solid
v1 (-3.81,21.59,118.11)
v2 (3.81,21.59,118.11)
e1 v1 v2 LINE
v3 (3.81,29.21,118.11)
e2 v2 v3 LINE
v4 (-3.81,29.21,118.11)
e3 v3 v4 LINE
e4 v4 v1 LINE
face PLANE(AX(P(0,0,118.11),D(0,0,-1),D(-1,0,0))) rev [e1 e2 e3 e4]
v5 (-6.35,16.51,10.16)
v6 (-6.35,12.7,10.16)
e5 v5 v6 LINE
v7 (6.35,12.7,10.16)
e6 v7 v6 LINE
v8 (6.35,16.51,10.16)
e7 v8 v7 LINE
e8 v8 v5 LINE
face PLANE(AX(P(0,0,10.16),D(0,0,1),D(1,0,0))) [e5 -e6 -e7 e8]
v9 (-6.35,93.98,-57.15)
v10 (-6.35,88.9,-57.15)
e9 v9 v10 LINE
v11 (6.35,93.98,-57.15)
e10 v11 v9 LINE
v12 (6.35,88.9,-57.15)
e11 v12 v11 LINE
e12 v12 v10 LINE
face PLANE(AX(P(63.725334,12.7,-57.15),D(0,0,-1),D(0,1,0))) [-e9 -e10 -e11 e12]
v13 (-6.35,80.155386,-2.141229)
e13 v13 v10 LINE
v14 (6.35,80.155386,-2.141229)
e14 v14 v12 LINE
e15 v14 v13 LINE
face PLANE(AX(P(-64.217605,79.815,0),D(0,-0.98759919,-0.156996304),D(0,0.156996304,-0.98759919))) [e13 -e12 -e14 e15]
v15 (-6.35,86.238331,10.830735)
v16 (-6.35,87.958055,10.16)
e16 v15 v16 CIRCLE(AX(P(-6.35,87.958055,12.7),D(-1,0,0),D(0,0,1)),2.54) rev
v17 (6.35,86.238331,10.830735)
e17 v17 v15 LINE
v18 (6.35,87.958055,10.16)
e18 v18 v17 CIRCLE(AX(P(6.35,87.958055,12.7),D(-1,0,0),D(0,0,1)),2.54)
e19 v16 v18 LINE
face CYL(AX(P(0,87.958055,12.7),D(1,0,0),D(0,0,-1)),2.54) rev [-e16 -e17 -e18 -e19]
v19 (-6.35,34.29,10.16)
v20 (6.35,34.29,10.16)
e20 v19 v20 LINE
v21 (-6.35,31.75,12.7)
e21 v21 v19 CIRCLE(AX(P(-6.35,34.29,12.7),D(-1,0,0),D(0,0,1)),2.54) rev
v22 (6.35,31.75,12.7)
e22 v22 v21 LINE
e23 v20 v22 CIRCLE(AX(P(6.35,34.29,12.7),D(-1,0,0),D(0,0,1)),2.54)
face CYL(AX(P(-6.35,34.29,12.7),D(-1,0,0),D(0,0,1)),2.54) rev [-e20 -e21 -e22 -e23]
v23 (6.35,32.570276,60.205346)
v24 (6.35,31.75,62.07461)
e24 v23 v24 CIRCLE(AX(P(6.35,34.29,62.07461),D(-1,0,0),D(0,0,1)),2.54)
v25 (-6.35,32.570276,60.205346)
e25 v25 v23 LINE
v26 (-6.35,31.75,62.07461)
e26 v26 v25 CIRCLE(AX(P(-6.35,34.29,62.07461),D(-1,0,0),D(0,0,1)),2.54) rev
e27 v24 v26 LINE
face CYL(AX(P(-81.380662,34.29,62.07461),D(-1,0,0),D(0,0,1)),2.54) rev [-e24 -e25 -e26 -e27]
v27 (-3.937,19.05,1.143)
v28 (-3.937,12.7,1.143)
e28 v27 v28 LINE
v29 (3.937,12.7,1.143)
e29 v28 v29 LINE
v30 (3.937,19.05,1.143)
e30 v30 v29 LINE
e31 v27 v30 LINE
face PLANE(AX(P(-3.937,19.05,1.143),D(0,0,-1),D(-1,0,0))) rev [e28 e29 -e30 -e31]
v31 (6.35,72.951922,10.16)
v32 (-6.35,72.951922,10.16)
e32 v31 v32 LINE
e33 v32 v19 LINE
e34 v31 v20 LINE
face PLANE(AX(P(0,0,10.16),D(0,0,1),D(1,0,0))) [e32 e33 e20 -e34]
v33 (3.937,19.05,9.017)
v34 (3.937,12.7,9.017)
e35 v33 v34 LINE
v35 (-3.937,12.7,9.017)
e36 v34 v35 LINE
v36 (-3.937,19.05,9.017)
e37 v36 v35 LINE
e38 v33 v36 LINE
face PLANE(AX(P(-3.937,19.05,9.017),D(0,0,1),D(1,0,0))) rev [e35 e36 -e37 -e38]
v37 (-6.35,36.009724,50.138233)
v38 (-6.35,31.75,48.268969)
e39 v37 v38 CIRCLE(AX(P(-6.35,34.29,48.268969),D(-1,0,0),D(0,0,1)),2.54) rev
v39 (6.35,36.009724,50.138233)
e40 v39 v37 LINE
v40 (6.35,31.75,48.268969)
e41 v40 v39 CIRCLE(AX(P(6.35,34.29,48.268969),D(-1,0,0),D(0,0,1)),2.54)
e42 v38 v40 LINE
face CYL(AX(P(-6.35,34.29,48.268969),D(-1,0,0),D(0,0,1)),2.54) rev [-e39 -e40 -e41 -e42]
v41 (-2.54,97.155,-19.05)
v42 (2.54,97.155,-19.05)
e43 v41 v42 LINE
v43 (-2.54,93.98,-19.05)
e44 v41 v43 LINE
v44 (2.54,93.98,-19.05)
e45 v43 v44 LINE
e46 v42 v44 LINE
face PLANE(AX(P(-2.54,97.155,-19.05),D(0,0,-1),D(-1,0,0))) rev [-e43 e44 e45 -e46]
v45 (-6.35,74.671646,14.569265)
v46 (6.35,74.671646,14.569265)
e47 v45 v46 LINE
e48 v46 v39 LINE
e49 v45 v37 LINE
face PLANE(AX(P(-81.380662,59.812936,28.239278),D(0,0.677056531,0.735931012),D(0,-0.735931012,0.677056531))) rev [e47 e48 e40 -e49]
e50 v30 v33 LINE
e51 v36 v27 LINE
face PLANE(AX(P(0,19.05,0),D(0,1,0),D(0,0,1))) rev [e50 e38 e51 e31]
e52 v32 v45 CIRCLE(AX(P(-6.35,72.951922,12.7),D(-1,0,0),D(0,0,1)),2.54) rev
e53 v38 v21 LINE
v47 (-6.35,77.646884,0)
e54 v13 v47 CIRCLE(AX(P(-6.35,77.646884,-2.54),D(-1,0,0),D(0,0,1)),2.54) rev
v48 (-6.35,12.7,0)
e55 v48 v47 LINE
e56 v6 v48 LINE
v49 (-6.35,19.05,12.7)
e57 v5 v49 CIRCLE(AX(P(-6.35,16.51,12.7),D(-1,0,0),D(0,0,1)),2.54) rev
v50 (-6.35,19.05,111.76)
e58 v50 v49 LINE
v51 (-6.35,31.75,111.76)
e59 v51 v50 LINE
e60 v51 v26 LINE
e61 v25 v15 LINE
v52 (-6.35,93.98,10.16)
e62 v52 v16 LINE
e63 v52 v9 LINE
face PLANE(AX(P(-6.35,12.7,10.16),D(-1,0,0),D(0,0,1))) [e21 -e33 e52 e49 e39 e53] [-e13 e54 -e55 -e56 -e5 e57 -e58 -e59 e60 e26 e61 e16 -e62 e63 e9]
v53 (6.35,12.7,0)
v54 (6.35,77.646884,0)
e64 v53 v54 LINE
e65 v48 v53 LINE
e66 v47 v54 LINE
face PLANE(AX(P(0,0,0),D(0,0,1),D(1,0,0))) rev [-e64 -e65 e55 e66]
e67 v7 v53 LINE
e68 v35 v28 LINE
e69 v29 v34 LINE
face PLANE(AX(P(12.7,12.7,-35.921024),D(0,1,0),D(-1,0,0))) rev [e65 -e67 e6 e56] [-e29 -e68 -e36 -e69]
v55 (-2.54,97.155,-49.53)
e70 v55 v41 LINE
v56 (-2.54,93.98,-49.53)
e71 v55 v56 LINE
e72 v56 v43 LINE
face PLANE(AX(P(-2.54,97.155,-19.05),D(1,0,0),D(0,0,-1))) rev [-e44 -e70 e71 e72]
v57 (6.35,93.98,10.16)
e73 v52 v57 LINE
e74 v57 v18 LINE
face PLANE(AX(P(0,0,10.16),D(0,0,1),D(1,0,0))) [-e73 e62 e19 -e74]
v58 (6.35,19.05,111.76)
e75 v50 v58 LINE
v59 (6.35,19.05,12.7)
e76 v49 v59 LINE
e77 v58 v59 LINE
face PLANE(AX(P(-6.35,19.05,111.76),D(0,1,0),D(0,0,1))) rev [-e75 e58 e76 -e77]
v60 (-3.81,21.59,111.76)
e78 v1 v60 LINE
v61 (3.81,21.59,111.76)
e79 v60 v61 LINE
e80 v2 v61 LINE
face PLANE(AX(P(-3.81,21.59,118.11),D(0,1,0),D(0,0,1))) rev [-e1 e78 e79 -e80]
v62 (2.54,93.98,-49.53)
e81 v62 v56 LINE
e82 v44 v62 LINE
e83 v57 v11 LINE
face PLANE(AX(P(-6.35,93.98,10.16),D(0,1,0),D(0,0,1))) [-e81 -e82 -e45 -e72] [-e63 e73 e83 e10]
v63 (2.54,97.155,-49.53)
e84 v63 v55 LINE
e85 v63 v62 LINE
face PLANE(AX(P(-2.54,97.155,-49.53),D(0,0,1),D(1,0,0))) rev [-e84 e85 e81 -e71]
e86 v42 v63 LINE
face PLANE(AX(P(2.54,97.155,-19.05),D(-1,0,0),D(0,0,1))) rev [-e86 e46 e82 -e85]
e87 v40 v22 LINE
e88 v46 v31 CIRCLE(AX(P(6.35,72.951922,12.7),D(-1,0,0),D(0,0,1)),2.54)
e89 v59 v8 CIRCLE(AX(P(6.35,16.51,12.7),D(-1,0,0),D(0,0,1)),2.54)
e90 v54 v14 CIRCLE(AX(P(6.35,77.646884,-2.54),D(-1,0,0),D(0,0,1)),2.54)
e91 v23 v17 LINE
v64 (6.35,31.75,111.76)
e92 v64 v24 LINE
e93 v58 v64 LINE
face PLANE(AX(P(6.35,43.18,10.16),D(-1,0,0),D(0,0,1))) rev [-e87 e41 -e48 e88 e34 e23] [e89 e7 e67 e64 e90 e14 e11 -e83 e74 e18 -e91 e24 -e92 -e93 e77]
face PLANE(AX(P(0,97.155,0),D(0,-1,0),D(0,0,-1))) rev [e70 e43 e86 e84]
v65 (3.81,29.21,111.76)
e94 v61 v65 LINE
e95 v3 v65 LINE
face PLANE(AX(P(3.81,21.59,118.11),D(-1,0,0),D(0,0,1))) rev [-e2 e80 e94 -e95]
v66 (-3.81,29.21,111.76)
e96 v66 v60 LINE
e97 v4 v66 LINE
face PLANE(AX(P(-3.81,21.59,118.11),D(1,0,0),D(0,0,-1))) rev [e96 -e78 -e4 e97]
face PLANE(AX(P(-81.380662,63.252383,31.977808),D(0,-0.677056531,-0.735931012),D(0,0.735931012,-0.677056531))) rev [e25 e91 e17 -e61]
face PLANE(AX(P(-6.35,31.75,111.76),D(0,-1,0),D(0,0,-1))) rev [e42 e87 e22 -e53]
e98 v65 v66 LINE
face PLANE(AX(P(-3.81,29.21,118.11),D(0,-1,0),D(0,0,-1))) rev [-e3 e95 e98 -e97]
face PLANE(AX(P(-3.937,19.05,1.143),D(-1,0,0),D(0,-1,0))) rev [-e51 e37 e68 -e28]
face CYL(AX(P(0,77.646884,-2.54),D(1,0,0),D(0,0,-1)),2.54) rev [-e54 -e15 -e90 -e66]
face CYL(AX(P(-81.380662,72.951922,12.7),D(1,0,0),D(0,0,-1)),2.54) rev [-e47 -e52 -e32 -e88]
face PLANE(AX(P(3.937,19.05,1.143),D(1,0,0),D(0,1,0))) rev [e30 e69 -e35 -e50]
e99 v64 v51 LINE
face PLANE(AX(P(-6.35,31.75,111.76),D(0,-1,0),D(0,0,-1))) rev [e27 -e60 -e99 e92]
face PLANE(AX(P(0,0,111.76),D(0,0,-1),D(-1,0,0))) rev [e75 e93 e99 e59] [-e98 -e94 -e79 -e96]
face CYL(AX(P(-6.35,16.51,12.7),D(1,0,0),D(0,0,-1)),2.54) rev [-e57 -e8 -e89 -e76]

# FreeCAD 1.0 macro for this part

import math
import FreeCAD as App
import Part
import Sketcher
from FreeCAD import Vector
Q = App.Units.Quantity


def edges_at(feature, points):
    """Names of the edges that pass closest to the given points."""
    edges = feature.Shape.Edges
    near = lambda p: min(range(len(edges)), key=lambda i: edges[i].distToShape(Part.Vertex(*p))[0])
    return sorted({f"Edge{near(p) + 1}" for p in points})


def add_polygon(sketch, points):
    """Adds a closed chain of lines whose ends are joined by coincident constraints."""
    first, n = sketch.GeometryCount, len(points)
    for a, b in zip(points, points[1:] + points[:1]):
        sketch.addGeometry(Part.LineSegment(App.Vector(*a, 0), App.Vector(*b, 0)), False)
    for i in range(n):
        sketch.addConstraint(Sketcher.Constraint("Coincident", first + i, 2, first + (i + 1) % n, 1))

doc = App.newDocument("Part")
params = doc.addObject("Spreadsheet::Sheet", "Params")
for row, (alias, value) in enumerate([
    ("sketch1_diameter", "0.4 in"),
    ("sketch1_radius", "0.5 in"),
    ("sketch1_diameter2", "0.14 in"),
    ("sketch1_width", "0.5 in"),
    ("pad1_length", "0.4 in"),
    ("sketch2_width", "0.5 in"),
    ("pad2_length", "4 in"),
    ("sketch3_width", "0.3 in"),
    ("pad3_length", "0.25 in"),
    ("pad4_length", "0.5 in"),
    ("fillet_radius", "0.1 in"),
    ("sketch5_width", "0.2 in"),
    ("sketch5_height", "2.25 in"),
    ("pad5_length", "0.5 in"),
    ("sketch6_width", "1 in"),
    ("pocket1_length", "4.4 in"),
    ("sketch7_height", "2.25 in"),
    ("pad6_length", "0.5 in"),
    ("fillet2_radius", "0.1 in"),
    ("sketch8_width", "0.2 in"),
    ("sketch8_height", "1.2 in"),
    ("pad7_length", "0.125 in"),
    ("sketch9_width", "0.31 in"),
    ("pocket2_length", "0.25 in"),
], start=1):
    params.set(f"A{row}", alias)
    params.set(f"B{row}", "=" + value)
    params.setAlias(f"B{row}", alias)

body = doc.addObject("PartDesign::Body", "Body")

# Sketch on XY plane
sketch1 = doc.addObject("Sketcher::SketchObject", "Sketch")
body.addObject(sketch1)
sketch1.AttachmentSupport = (doc.XY_Plane, [""])
sketch1.MapMode = "FlatFace"
sketch1.addGeometry([
    Part.ArcOfCircle(Part.Circle(Vector(0, 0, 0), Vector(0, 0, 1), 12.7), math.radians(120), math.radians(420)),  # 0
    Part.LineSegment(Vector(6.3, 11, 0), Vector(6.3, 94, 0)),  # 1
    Part.LineSegment(Vector(6.3, 94, 0), Vector(-6.3, 94, 0)),  # 2
    Part.LineSegment(Vector(-6.3, 94, 0), Vector(-6.3, 11, 0)),  # 3
    Part.Circle(Vector(0, -8.1, 0), Vector(0, 0, 1), 1.8),  # 4
    Part.Circle(Vector(-8.1, 0, 0), Vector(0, 0, 1), 1.8),  # 5
    Part.Circle(Vector(0, 0, 0), Vector(0, 0, 1), 5.1),  # 6
    Part.Circle(Vector(8.1, 0, 0), Vector(0, 0, 1), 1.8),  # 7
    Part.Circle(Vector(0, 8.1, 0), Vector(0, 0, 1), 1.8),  # 8
], False)
sketch1.addConstraint([
    Sketcher.Constraint("Coincident", 0, 2, 1, 1),
    Sketcher.Constraint("Coincident", 1, 2, 2, 1),
    Sketcher.Constraint("Coincident", 2, 2, 3, 1),
    Sketcher.Constraint("Coincident", 3, 2, 0, 1),
    Sketcher.Constraint("Vertical", 1),
    Sketcher.Constraint("Horizontal", 2),
    Sketcher.Constraint("Vertical", 3),
    Sketcher.Constraint("Coincident", 0, 3, -1, 1),
    Sketcher.Constraint("Coincident", 6, 3, -1, 1),
    Sketcher.Constraint("Equal", 4, 5),
    Sketcher.Constraint("Equal", 5, 7),
    Sketcher.Constraint("Equal", 7, 8),
    Sketcher.Constraint("Symmetric", 5, 3, 7, 3, -1, 1),
    Sketcher.Constraint("Symmetric", 4, 3, 8, 3, -1, 1),
    Sketcher.Constraint("PointOnObject", 4, 3, -2),
    Sketcher.Constraint("PointOnObject", 5, 3, -1),
    Sketcher.Constraint("Horizontal", 0, 2, 3, 2),
    Sketcher.Constraint("Diameter", 6, Q("0.4 in")),
    Sketcher.Constraint("Radius", 0, Q("0.5 in")),
    Sketcher.Constraint("Diameter", 4, Q("0.14 in")),
    Sketcher.Constraint("DistanceX", 2, 2, 2, 1, Q("0.5 in")),
    Sketcher.Constraint("DistanceY", -1, 1, 1, 2, Q("3.7 in")),
    Sketcher.Constraint("DistanceY", 4, 3, -1, 1, Q("0.32 in")),
    Sketcher.Constraint("DistanceX", 5, 3, -1, 1, Q("0.32 in")),
])
sketch1.setExpression("Constraints[17]", "Params.sketch1_diameter")
sketch1.setExpression("Constraints[18]", "Params.sketch1_radius")
sketch1.setExpression("Constraints[19]", "Params.sketch1_diameter2")
sketch1.setExpression("Constraints[20]", "Params.sketch1_width")
pad1 = doc.addObject("PartDesign::Pad", "Pad")
body.addObject(pad1)
pad1.Profile = sketch1
pad1.setExpression("Length", "Params.pad1_length")

# Sketch on XY plane
sketch2 = doc.addObject("Sketcher::SketchObject", "Sketch001")
body.addObject(sketch2)
sketch2.AttachmentSupport = (doc.XY_Plane, [""])
sketch2.MapMode = "FlatFace"
sketch2.AttachmentOffset = App.Placement(Vector(0, 0, 0.4 * 25.4), App.Rotation())
add_polygon(sketch2, [(-6, 32), (-6, 19), (6, 19), (6, 32)])  # lines 0-3
sketch2.addConstraint([
    Sketcher.Constraint("Vertical", 0),
    Sketcher.Constraint("Horizontal", 1),
    Sketcher.Constraint("Vertical", 2),
    Sketcher.Constraint("Horizontal", 3),
    Sketcher.Constraint("Equal", 3, 0),
    Sketcher.Constraint("DistanceX", 1, 1, 1, 2, Q("0.5 in")),
    Sketcher.Constraint("DistanceX", 0, 2, -1, 1, Q("0.25 in")),
    Sketcher.Constraint("DistanceY", -1, 1, 0, 2, Q("0.75 in")),
])
sketch2.setExpression("Constraints[9]", "Params.sketch2_width")
pad2 = doc.addObject("PartDesign::Pad", "Pad001")
body.addObject(pad2)
pad2.Profile = sketch2
pad2.setExpression("Length", "Params.pad2_length")

# Sketch on XY plane
sketch3 = doc.addObject("Sketcher::SketchObject", "Sketch002")
body.addObject(sketch3)
sketch3.AttachmentSupport = (doc.XY_Plane, [""])
sketch3.MapMode = "FlatFace"
sketch3.AttachmentOffset = App.Placement(Vector(0, 0, 4.4 * 25.4), App.Rotation())
add_polygon(sketch3, [(-4, 29), (-4, 22), (4, 22), (4, 29)])  # lines 0-3
sketch3.addConstraint([
    Sketcher.Constraint("Vertical", 0),
    Sketcher.Constraint("Horizontal", 1),
    Sketcher.Constraint("Vertical", 2),
    Sketcher.Constraint("Horizontal", 3),
    Sketcher.Constraint("Equal", 3, 0),
    Sketcher.Constraint("DistanceX", 1, 1, 1, 2, Q("0.3 in")),
    Sketcher.Constraint("DistanceX", 0, 2, -1, 1, Q("0.15 in")),
    Sketcher.Constraint("DistanceY", -1, 1, 0, 2, Q("0.85 in")),
])
sketch3.setExpression("Constraints[9]", "Params.sketch3_width")
pad3 = doc.addObject("PartDesign::Pad", "Pad002")
body.addObject(pad3)
pad3.Profile = sketch3
pad3.setExpression("Length", "Params.pad3_length")

# Sketch on YZ plane
sketch4 = doc.addObject("Sketcher::SketchObject", "Sketch003")
body.addObject(sketch4)
sketch4.AttachmentSupport = (doc.YZ_Plane, [""])
sketch4.MapMode = "FlatFace"
sketch4.AttachmentOffset = App.Placement(Vector(0, 0, 0.25 * 25.4), App.Rotation())
add_polygon(sketch4, [(32, 61), (64, 32), (87, 10), (79, 10), (58, 30), (32, 54)])  # lines 0-5
sketch4.addConstraint([
    Sketcher.Constraint("Horizontal", 2),
    Sketcher.Constraint("Vertical", 5),
    Sketcher.Constraint("Parallel", 0, 1),
    Sketcher.Constraint("Parallel", 1, 3),
    Sketcher.Constraint("Parallel", 3, 4),
    Sketcher.Constraint("DistanceY", 2, 2, 5, 2, Q("2 in")),
    Sketcher.Constraint("DistanceX", -1, 1, 0, 2, Q("2.5 in")),
    Sketcher.Constraint("DistanceY", -1, 1, 1, 2, Q("0.4 in")),
    Sketcher.Constraint("DistanceX", -1, 1, 3, 2, Q("2.3 in")),
    Sketcher.Constraint("DistanceY", -1, 1, 0, 2, Q("1.25 in")),
    Sketcher.Constraint("DistanceX", -1, 1, 4, 2, Q("1.25 in")),
    Sketcher.Constraint("DistanceY", 5, 1, 5, 2, Q("6.902821 mm")),
])
pad4 = doc.addObject("PartDesign::Pad", "Pad003")
body.addObject(pad4)
pad4.Profile = sketch4
pad4.setExpression("Length", "Params.pad4_length")
pad4.Reversed = True
doc.recompute()

fillet = doc.addObject("PartDesign::Fillet", "Fillet")
body.addObject(fillet)
fillet.Base = (pad4, edges_at(pad4, [(0, 31.75, 60.96)]))
fillet.setExpression("Radius", "Params.fillet_radius")

# Sketch on YZ plane
sketch5 = doc.addObject("Sketcher::SketchObject", "Sketch004")
body.addObject(sketch5)
sketch5.AttachmentSupport = (doc.YZ_Plane, [""])
sketch5.MapMode = "FlatFace"
sketch5.AttachmentOffset = App.Placement(Vector(0, 0, -0.25 * 25.4), App.Rotation())
add_polygon(sketch5, [(94, 0), (89, 0), (89, -57), (94, -57)])  # lines 0-3
sketch5.addConstraint([
    Sketcher.Constraint("Horizontal", 0),
    Sketcher.Constraint("Vertical", 1),
    Sketcher.Constraint("Horizontal", 2),
    Sketcher.Constraint("Vertical", 3),
    Sketcher.Constraint("PointOnObject", 0, 2, -1),
    Sketcher.Constraint("DistanceX", 0, 2, 0, 1, Q("0.2 in")),
    Sketcher.Constraint("DistanceY", 1, 2, 1, 1, Q("2.25 in")),
    Sketcher.Constraint("DistanceX", -1, 1, 0, 2, Q("3.5 in")),
])
sketch5.setExpression("Constraints[9]", "Params.sketch5_width")
sketch5.setExpression("Constraints[10]", "Params.sketch5_height")
pad5 = doc.addObject("PartDesign::Pad", "Pad004")
body.addObject(pad5)
pad5.Profile = sketch5
pad5.setExpression("Length", "Params.pad5_length")

# Sketch on XY plane
sketch6 = doc.addObject("Sketcher::SketchObject", "Sketch005")
body.addObject(sketch6)
sketch6.AttachmentSupport = (doc.XY_Plane, [""])
sketch6.MapMode = "FlatFace"
sketch6.AttachmentOffset = App.Placement(Vector(0, 0, 4.4 * 25.4), App.Rotation())
add_polygon(sketch6, [(-13, 13), (-13, -13), (13, -13), (13, 13)])  # lines 0-3
sketch6.addConstraint([
    Sketcher.Constraint("Vertical", 0),
    Sketcher.Constraint("Horizontal", 1),
    Sketcher.Constraint("Vertical", 2),
    Sketcher.Constraint("Horizontal", 3),
    Sketcher.Constraint("Symmetric", 0, 2, 2, 2, -1, 1),
    Sketcher.Constraint("Equal", 3, 0),
    Sketcher.Constraint("DistanceX", 1, 1, 1, 2, Q("1 in")),
])
sketch6.setExpression("Constraints[10]", "Params.sketch6_width")
pocket1 = doc.addObject("PartDesign::Pocket", "Pocket")
body.addObject(pocket1)
pocket1.Profile = sketch6
pocket1.setExpression("Length", "Params.pocket1_length")

# Sketch on YZ plane
sketch7 = doc.addObject("Sketcher::SketchObject", "Sketch006")
body.addObject(sketch7)
sketch7.AttachmentSupport = (doc.YZ_Plane, [""])
sketch7.MapMode = "FlatFace"
sketch7.AttachmentOffset = App.Placement(Vector(0, 0, 0.25 * 25.4), App.Rotation())
add_polygon(sketch7, [(80, 0), (89, -57), (89, 0)])  # lines 0-2
sketch7.addConstraint([
    Sketcher.Constraint("Vertical", 1),
    Sketcher.Constraint("Horizontal", 2),
    Sketcher.Constraint("PointOnObject", 1, 2, -1),
    Sketcher.Constraint("DistanceY", 1, 1, 1, 2, Q("2.25 in")),
    Sketcher.Constraint("DistanceX", -1, 1, 0, 2, Q("3.5 in")),
    Sketcher.Constraint("DistanceX", 2, 2, 2, 1, Q("9.085 mm")),
])
sketch7.setExpression("Constraints[6]", "Params.sketch7_height")
pad6 = doc.addObject("PartDesign::Pad", "Pad005")
body.addObject(pad6)
pad6.Profile = sketch7
pad6.setExpression("Length", "Params.pad6_length")
pad6.Reversed = True
doc.recompute()

fillet2 = doc.addObject("PartDesign::Fillet", "Fillet001")
body.addObject(fillet2)
fillet2.Base = (pad6, edges_at(pad6, [
    (0, 79.815, 0),
    (0, 31.75, 10.16),
    (0, 19.05, 10.16),
    (0, 86.967, 10.16),
    (0, 79.464, 10.16),
    (0, 31.75, 54.057),
]))
fillet2.setExpression("Radius", "Params.fillet2_radius")

# Sketch on XZ plane
sketch8 = doc.addObject("Sketcher::SketchObject", "Sketch007")
body.addObject(sketch8)
sketch8.AttachmentSupport = (doc.XZ_Plane, [""])
sketch8.MapMode = "FlatFace"
sketch8.AttachmentOffset = App.Placement(Vector(0, 0, -3.7 * 25.4), App.Rotation())
add_polygon(sketch8, [(-3, -50), (-3, -19), (3, -19), (3, -50)])  # lines 0-3
sketch8.addConstraint([
    Sketcher.Constraint("Vertical", 0),
    Sketcher.Constraint("Horizontal", 1),
    Sketcher.Constraint("Vertical", 2),
    Sketcher.Constraint("Horizontal", 3),
    Sketcher.Constraint("DistanceX", 1, 1, 1, 2, Q("0.2 in")),
    Sketcher.Constraint("DistanceY", 0, 1, 0, 2, Q("1.2 in")),
    Sketcher.Constraint("DistanceX", 0, 2, -1, 1, Q("0.1 in")),
    Sketcher.Constraint("DistanceY", 0, 2, -1, 1, Q("0.75 in")),
])
sketch8.setExpression("Constraints[8]", "Params.sketch8_width")
sketch8.setExpression("Constraints[9]", "Params.sketch8_height")
pad7 = doc.addObject("PartDesign::Pad", "Pad006")
body.addObject(pad7)
pad7.Profile = sketch8
pad7.setExpression("Length", "Params.pad7_length")
pad7.Reversed = True

# Sketch on XZ plane
sketch9 = doc.addObject("Sketcher::SketchObject", "Sketch008")
body.addObject(sketch9)
sketch9.AttachmentSupport = (doc.XZ_Plane, [""])
sketch9.MapMode = "FlatFace"
sketch9.AttachmentOffset = App.Placement(Vector(0, 0, -0.5 * 25.4), App.Rotation())
add_polygon(sketch9, [(-4, 9), (-4, 1), (4, 1), (4, 9)])  # lines 0-3
sketch9.addConstraint([
    Sketcher.Constraint("Vertical", 0),
    Sketcher.Constraint("Horizontal", 1),
    Sketcher.Constraint("Vertical", 2),
    Sketcher.Constraint("Horizontal", 3),
    Sketcher.Constraint("Equal", 3, 0),
    Sketcher.Constraint("DistanceX", 1, 1, 1, 2, Q("0.31 in")),
    Sketcher.Constraint("DistanceX", 0, 2, -1, 1, Q("0.155 in")),
    Sketcher.Constraint("DistanceY", -1, 1, 0, 2, Q("0.045 in")),
])
sketch9.setExpression("Constraints[9]", "Params.sketch9_width")
pocket2 = doc.addObject("PartDesign::Pocket", "Pocket001")
body.addObject(pocket2)
pocket2.Profile = sketch9
pocket2.setExpression("Length", "Params.pocket2_length")

doc.recompute()
